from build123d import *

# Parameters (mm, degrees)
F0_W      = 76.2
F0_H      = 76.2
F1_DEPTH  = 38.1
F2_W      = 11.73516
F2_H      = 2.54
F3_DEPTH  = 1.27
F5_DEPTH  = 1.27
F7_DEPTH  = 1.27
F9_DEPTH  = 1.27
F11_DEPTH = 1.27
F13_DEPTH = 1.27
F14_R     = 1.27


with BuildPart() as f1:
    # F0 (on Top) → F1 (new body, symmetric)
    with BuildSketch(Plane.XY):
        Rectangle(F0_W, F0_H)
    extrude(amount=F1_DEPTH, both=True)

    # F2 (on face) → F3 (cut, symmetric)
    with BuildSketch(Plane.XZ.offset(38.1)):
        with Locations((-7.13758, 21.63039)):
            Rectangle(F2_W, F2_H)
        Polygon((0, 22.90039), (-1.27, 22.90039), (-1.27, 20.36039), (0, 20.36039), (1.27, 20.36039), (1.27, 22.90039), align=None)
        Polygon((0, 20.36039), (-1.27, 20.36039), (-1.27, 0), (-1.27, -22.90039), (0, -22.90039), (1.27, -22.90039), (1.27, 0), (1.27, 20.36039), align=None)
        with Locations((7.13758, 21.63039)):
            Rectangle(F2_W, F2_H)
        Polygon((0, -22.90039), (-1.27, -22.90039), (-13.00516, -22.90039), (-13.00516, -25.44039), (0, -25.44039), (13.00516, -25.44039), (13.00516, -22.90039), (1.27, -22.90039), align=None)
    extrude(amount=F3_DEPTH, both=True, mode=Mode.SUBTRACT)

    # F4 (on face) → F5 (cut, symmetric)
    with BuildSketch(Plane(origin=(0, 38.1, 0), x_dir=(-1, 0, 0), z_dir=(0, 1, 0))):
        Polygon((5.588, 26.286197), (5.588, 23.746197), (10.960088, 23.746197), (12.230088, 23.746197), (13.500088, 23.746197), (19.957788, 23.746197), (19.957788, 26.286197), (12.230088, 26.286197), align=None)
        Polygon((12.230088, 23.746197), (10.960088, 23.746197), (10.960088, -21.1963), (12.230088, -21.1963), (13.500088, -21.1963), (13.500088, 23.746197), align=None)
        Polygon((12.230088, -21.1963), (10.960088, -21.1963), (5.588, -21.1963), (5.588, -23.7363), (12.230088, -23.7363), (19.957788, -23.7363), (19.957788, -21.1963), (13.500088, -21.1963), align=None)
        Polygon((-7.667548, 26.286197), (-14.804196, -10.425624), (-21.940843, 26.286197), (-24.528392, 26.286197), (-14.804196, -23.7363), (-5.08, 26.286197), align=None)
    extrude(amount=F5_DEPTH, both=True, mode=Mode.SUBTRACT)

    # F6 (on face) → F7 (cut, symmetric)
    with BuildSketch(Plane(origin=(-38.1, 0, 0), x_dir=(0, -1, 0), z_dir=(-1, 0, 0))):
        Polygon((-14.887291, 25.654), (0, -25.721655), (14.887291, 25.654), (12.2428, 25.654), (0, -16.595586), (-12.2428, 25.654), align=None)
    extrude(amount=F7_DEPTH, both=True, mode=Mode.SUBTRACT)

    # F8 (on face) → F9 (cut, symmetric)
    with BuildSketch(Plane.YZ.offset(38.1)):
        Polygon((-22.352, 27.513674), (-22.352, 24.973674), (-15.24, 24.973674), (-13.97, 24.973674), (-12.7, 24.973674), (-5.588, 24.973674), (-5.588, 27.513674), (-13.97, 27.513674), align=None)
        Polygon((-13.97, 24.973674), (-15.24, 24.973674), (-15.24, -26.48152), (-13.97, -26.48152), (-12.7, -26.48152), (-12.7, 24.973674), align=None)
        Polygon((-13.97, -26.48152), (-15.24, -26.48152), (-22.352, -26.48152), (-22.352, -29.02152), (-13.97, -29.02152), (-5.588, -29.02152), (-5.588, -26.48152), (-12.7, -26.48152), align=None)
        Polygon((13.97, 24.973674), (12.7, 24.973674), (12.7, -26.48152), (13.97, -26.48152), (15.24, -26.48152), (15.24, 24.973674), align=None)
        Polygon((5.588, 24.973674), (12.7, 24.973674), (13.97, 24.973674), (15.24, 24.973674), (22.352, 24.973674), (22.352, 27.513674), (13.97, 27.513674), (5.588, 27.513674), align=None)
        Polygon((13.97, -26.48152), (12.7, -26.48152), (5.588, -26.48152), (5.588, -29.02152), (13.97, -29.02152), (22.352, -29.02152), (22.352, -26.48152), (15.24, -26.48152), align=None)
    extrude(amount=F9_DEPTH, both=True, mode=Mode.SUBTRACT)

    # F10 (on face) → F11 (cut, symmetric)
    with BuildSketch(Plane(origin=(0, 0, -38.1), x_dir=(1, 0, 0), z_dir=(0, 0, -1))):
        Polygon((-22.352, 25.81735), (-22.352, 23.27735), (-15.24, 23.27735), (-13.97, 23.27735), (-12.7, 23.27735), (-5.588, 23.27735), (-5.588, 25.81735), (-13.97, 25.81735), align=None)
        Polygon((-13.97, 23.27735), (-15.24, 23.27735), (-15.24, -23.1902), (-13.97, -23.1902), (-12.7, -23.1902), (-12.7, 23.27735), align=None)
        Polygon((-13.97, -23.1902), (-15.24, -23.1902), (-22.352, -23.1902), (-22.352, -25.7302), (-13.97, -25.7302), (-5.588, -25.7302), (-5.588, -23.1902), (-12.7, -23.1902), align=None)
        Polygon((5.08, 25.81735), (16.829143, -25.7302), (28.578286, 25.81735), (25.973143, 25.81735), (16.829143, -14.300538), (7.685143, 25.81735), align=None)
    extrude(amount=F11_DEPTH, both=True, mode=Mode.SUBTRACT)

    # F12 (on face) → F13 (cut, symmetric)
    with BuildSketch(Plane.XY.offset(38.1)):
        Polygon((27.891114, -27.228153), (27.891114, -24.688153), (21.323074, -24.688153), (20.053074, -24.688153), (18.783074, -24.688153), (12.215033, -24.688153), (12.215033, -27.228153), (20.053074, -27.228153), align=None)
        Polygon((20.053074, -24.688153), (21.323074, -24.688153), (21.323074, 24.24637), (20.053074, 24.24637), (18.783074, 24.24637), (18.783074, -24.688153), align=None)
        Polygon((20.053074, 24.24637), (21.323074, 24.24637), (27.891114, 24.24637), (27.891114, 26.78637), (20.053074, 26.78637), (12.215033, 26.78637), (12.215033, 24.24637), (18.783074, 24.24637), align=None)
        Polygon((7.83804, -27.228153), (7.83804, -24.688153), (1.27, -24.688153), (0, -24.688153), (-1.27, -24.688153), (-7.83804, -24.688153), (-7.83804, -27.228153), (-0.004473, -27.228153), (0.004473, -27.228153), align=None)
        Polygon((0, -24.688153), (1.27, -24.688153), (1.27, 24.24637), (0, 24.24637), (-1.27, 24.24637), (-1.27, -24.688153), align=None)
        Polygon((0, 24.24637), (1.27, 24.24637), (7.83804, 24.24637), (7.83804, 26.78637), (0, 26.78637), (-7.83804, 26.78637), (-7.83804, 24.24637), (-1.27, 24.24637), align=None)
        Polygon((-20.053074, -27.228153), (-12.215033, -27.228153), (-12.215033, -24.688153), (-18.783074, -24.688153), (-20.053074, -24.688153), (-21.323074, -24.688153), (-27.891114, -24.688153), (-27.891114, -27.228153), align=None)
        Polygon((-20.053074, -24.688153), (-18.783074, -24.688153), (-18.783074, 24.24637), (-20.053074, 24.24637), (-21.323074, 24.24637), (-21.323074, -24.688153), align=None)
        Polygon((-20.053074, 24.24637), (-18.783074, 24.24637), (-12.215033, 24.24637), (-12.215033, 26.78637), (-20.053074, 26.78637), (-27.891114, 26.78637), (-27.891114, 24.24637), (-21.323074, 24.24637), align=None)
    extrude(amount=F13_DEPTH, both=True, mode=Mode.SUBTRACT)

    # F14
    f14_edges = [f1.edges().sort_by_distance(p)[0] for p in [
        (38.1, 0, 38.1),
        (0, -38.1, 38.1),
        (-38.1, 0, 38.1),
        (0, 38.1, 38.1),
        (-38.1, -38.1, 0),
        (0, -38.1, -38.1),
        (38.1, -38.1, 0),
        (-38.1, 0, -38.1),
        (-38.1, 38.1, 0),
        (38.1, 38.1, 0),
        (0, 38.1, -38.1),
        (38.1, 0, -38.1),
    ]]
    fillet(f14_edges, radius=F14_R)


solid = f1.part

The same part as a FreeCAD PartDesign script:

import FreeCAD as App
import Part
import Sketcher
Q = App.Units.Quantity


def edges_at(feature, points):
    """Names of the edges that pass closest to the given points."""
    edges = feature.Shape.Edges
    near = lambda p: min(range(len(edges)), key=lambda i: edges[i].distToShape(Part.Vertex(*p))[0])
    return sorted({f"Edge{near(p) + 1}" for p in points})

doc = App.newDocument("Part")
body = doc.addObject("PartDesign::Body", "Body")

sketch1 = body.newObject("Sketcher::SketchObject", "Sketch")
sketch1.AttachmentSupport = (doc.getObject("XY_Plane"), [""])
sketch1.MapMode = "FlatFace"
sketch1.addGeometry([
    Part.LineSegment(App.Vector(-38.1, 38.1, 0), App.Vector(-38.1, -38.1, 0)),
    Part.LineSegment(App.Vector(-38.1, -38.1, 0), App.Vector(38.1, -38.1, 0)),
    Part.LineSegment(App.Vector(38.1, -38.1, 0), App.Vector(38.1, 38.1, 0)),
    Part.LineSegment(App.Vector(38.1, 38.1, 0), App.Vector(-38.1, 38.1, 0)),
], False)
sketch1.addConstraint([
    Sketcher.Constraint("Coincident", 0, 2, 1, 1),
    Sketcher.Constraint("Coincident", 1, 2, 2, 1),
    Sketcher.Constraint("Coincident", 2, 2, 3, 1),
    Sketcher.Constraint("Coincident", 3, 2, 0, 1),
    Sketcher.Constraint("Vertical", 0),
    Sketcher.Constraint("Horizontal", 1),
    Sketcher.Constraint("Vertical", 2),
    Sketcher.Constraint("Horizontal", 3),
    Sketcher.Constraint("Symmetric", 0, 2, 2, 2, -1, 1),
    Sketcher.Constraint("Equal", 3, 0),
    Sketcher.Constraint("DistanceX", 1, 1, 1, 2, Q("3 in")),
])
pad1 = body.newObject("PartDesign::Pad", "Pad")
pad1.Profile = sketch1
pad1.Length = Q("3 in")
pad1.Midplane = True

sketch2 = body.newObject("Sketcher::SketchObject", "Sketch001")
sketch2.AttachmentSupport = (doc.getObject("XZ_Plane"), [""])
sketch2.MapMode = "FlatFace"
sketch2.AttachmentOffset = App.Placement(App.Vector(0, 0, 1.5 * 25.4), App.Rotation())
sketch2.addGeometry([
    Part.LineSegment(App.Vector(-13.00516, 22.90039, 0), App.Vector(-13.00516, 20.36039, 0)),
    Part.LineSegment(App.Vector(-13.00516, 20.36039, 0), App.Vector(-1.27, 20.36039, 0)),
    Part.LineSegment(App.Vector(-1.27, 20.36039, 0), App.Vector(-1.27, -22.90039, 0)),
    Part.LineSegment(App.Vector(-1.27, -22.90039, 0), App.Vector(-13.00516, -22.90039, 0)),
    Part.LineSegment(App.Vector(-13.00516, -22.90039, 0), App.Vector(-13.00516, -25.44039, 0)),
    Part.LineSegment(App.Vector(-13.00516, -25.44039, 0), App.Vector(13.00516, -25.44039, 0)),
    Part.LineSegment(App.Vector(13.00516, -25.44039, 0), App.Vector(13.00516, -22.90039, 0)),
    Part.LineSegment(App.Vector(13.00516, -22.90039, 0), App.Vector(1.27, -22.90039, 0)),
    Part.LineSegment(App.Vector(1.27, -22.90039, 0), App.Vector(1.27, 20.36039, 0)),
    Part.LineSegment(App.Vector(1.27, 20.36039, 0), App.Vector(13.00516, 20.36039, 0)),
    Part.LineSegment(App.Vector(13.00516, 20.36039, 0), App.Vector(13.00516, 22.90039, 0)),
    Part.LineSegment(App.Vector(13.00516, 22.90039, 0), App.Vector(-13.00516, 22.90039, 0)),
], False)
sketch2.addConstraint([
    Sketcher.Constraint("Coincident", 0, 2, 1, 1),
    Sketcher.Constraint("Coincident", 1, 2, 2, 1),
    Sketcher.Constraint("Coincident", 2, 2, 3, 1),
    Sketcher.Constraint("Coincident", 3, 2, 4, 1),
    Sketcher.Constraint("Coincident", 4, 2, 5, 1),
    Sketcher.Constraint("Coincident", 5, 2, 6, 1),
    Sketcher.Constraint("Coincident", 6, 2, 7, 1),
    Sketcher.Constraint("Coincident", 7, 2, 8, 1),
    Sketcher.Constraint("Coincident", 8, 2, 9, 1),
    Sketcher.Constraint("Coincident", 9, 2, 10, 1),
    Sketcher.Constraint("Coincident", 10, 2, 11, 1),
    Sketcher.Constraint("Coincident", 11, 2, 0, 1),
    Sketcher.Constraint("Vertical", 0),
    Sketcher.Constraint("Horizontal", 1),
    Sketcher.Constraint("Vertical", 2),
    Sketcher.Constraint("Horizontal", 3),
    Sketcher.Constraint("Vertical", 4),
    Sketcher.Constraint("Horizontal", 5),
    Sketcher.Constraint("Vertical", 6),
    Sketcher.Constraint("Horizontal", 7),
    Sketcher.Constraint("Vertical", 8),
    Sketcher.Constraint("Horizontal", 9),
    Sketcher.Constraint("Vertical", 10),
    Sketcher.Constraint("Horizontal", 11),
    Sketcher.Constraint("Symmetric", 3, 2, 10, 2, -1, 1),
    Sketcher.Constraint("Symmetric", 6, 2, 11, 2, -1, 1),
    Sketcher.Constraint("Symmetric", 1, 2, 8, 2, -2),
    Sketcher.Constraint("Vertical", 0, 2, 3, 2),
    Sketcher.Constraint("Equal", 0, 4),
    Sketcher.Constraint("DistanceY", 0, 2, 0, 1, Q("0.1 in")),
    Sketcher.Constraint("DistanceX", 2, 2, 7, 2, Q("0.1 in")),
    Sketcher.Constraint("DistanceX", 1, 1, 1, 2, 11.73516),
    Sketcher.Constraint("DistanceY", 2, 2, 2, 1, 43.26078),
])
pocket1 = body.newObject("PartDesign::Pocket", "Pocket")
pocket1.Profile = sketch2
pocket1.Length = Q("0.1 in")
pocket1.Midplane = True

sketch3 = body.newObject("Sketcher::SketchObject", "Sketch002")
sketch3.AttachmentSupport = (doc.getObject("XZ_Plane"), [""])
sketch3.MapMode = "FlatFace"
sketch3.AttachmentOffset = App.Placement(App.Vector(0, 0, -1.5 * 25.4), App.Rotation())
sketch3.addGeometry([
    Part.LineSegment(App.Vector(-5.588, 26.286197, 0), App.Vector(-5.588, 23.746197, 0)),
    Part.LineSegment(App.Vector(-5.588, 23.746197, 0), App.Vector(-10.960088, 23.746197, 0)),
    Part.LineSegment(App.Vector(-10.960088, 23.746197, 0), App.Vector(-10.960088, -21.1963, 0)),
    Part.LineSegment(App.Vector(-10.960088, -21.1963, 0), App.Vector(-5.588, -21.1963, 0)),
    Part.LineSegment(App.Vector(-5.588, -21.1963, 0), App.Vector(-5.588, -23.7363, 0)),
    Part.LineSegment(App.Vector(-5.588, -23.7363, 0), App.Vector(-19.957788, -23.7363, 0)),
    Part.LineSegment(App.Vector(-19.957788, -23.7363, 0), App.Vector(-19.957788, -21.1963, 0)),
    Part.LineSegment(App.Vector(-19.957788, -21.1963, 0), App.Vector(-13.500088, -21.1963, 0)),
    Part.LineSegment(App.Vector(-13.500088, -21.1963, 0), App.Vector(-13.500088, 23.746197, 0)),
    Part.LineSegment(App.Vector(-13.500088, 23.746197, 0), App.Vector(-19.957788, 23.746197, 0)),
    Part.LineSegment(App.Vector(-19.957788, 23.746197, 0), App.Vector(-19.957788, 26.286197, 0)),
    Part.LineSegment(App.Vector(-19.957788, 26.286197, 0), App.Vector(-5.588, 26.286197, 0)),
    Part.LineSegment(App.Vector(7.667548, 26.286197, 0), App.Vector(14.804196, -10.425624, 0)),
    Part.LineSegment(App.Vector(14.804196, -10.425624, 0), App.Vector(21.940843, 26.286197, 0)),
    Part.LineSegment(App.Vector(21.940843, 26.286197, 0), App.Vector(24.528392, 26.286197, 0)),
    Part.LineSegment(App.Vector(24.528392, 26.286197, 0), App.Vector(14.804196, -23.7363, 0)),
    Part.LineSegment(App.Vector(14.804196, -23.7363, 0), App.Vector(5.08, 26.286197, 0)),
    Part.LineSegment(App.Vector(5.08, 26.286197, 0), App.Vector(7.667548, 26.286197, 0)),
], False)
sketch3.addConstraint([
    Sketcher.Constraint("Coincident", 0, 2, 1, 1),
    Sketcher.Constraint("Coincident", 1, 2, 2, 1),
    Sketcher.Constraint("Coincident", 2, 2, 3, 1),
    Sketcher.Constraint("Coincident", 3, 2, 4, 1),
    Sketcher.Constraint("Coincident", 4, 2, 5, 1),
    Sketcher.Constraint("Coincident", 5, 2, 6, 1),
    Sketcher.Constraint("Coincident", 6, 2, 7, 1),
    Sketcher.Constraint("Coincident", 7, 2, 8, 1),
    Sketcher.Constraint("Coincident", 8, 2, 9, 1),
    Sketcher.Constraint("Coincident", 9, 2, 10, 1),
    Sketcher.Constraint("Coincident", 10, 2, 11, 1),
    Sketcher.Constraint("Coincident", 11, 2, 0, 1),
    Sketcher.Constraint("Coincident", 12, 2, 13, 1),
    Sketcher.Constraint("Coincident", 13, 2, 14, 1),
    Sketcher.Constraint("Coincident", 14, 2, 15, 1),
    Sketcher.Constraint("Coincident", 15, 2, 16, 1),
    Sketcher.Constraint("Coincident", 16, 2, 17, 1),
    Sketcher.Constraint("Coincident", 17, 2, 12, 1),
    Sketcher.Constraint("Vertical", 0),
    Sketcher.Constraint("Horizontal", 1),
    Sketcher.Constraint("Vertical", 2),
    Sketcher.Constraint("Horizontal", 3),
    Sketcher.Constraint("Vertical", 4),
    Sketcher.Constraint("Horizontal", 5),
    Sketcher.Constraint("Vertical", 6),
    Sketcher.Constraint("Horizontal", 7),
    Sketcher.Constraint("Vertical", 8),
    Sketcher.Constraint("Horizontal", 9),
    Sketcher.Constraint("Vertical", 10),
    Sketcher.Constraint("Horizontal", 11),
    Sketcher.Constraint("Horizontal", 14),
    Sketcher.Constraint("Horizontal", 17),
    Sketcher.Constraint("Parallel", 13, 15),
    Sketcher.Constraint("Parallel", 12, 16),
    Sketcher.Constraint("Horizontal", 3, 2, 6, 2),
    Sketcher.Constraint("Horizontal", 1, 2, 8, 2),
    Sketcher.Constraint("Horizontal", 11, 2, 13, 2),
    Sketcher.Constraint("Horizontal", 5, 2, 15, 2),
    Sketcher.Constraint("Horizontal", 14, 2, 16, 2),
    Sketcher.Constraint("Vertical", 0, 2, 3, 2),
    Sketcher.Constraint("Vertical", 6, 2, 9, 2),
    Sketcher.Constraint("Vertical", 12, 2, 15, 2),
    Sketcher.Constraint("Equal", 14, 17),
    Sketcher.Constraint("Equal", 0, 4),
    Sketcher.Constraint("DistanceY", 0, 2, 0, 1, Q("0.1 in")),
    Sketcher.Constraint("DistanceX", -1, 1, 16, 2, Q("0.2 in")),
    Sketcher.Constraint("DistanceX", 7, 2, 2, 2, Q("0.1 in")),
    Sketcher.Constraint("DistanceX", 0, 2, -1, 1, Q("0.22 in")),
    Sketcher.Constraint("DistanceX", 7, 1, 7, 2, 6.4577),
    Sketcher.Constraint("DistanceY", 2, 2, -1, 1, Q("0.8345 in")),
    Sketcher.Constraint("DistanceX", 1, 2, 1, 1, 5.372088),
    Sketcher.Constraint("DistanceX", 14, 1, 14, 2, 2.587549),
    Sketcher.Constraint("Distance", 12, 37.399058),
    Sketcher.Constraint("DistanceY", 2, 2, 2, 1, 44.942497),
])
pocket2 = body.newObject("PartDesign::Pocket", "Pocket001")
pocket2.Profile = sketch3
pocket2.Length = Q("0.1 in")
pocket2.Midplane = True

sketch4 = body.newObject("Sketcher::SketchObject", "Sketch003")
sketch4.AttachmentSupport = (doc.getObject("YZ_Plane"), [""])
sketch4.MapMode = "FlatFace"
sketch4.AttachmentOffset = App.Placement(App.Vector(0, 0, -1.5 * 25.4), App.Rotation())
sketch4.addGeometry([
    Part.LineSegment(App.Vector(14.887291, 25.654, 0), App.Vector(0, -25.721655, 0)),
    Part.LineSegment(App.Vector(0, -25.721655, 0), App.Vector(-14.887291, 25.654, 0)),
    Part.LineSegment(App.Vector(-14.887291, 25.654, 0), App.Vector(-12.2428, 25.654, 0)),
    Part.LineSegment(App.Vector(-12.2428, 25.654, 0), App.Vector(0, -16.595586, 0)),
    Part.LineSegment(App.Vector(0, -16.595586, 0), App.Vector(12.2428, 25.654, 0)),
    Part.LineSegment(App.Vector(12.2428, 25.654, 0), App.Vector(14.887291, 25.654, 0)),
], False)
sketch4.addConstraint([
    Sketcher.Constraint("Coincident", 0, 2, 1, 1),
    Sketcher.Constraint("Coincident", 1, 2, 2, 1),
    Sketcher.Constraint("Coincident", 2, 2, 3, 1),
    Sketcher.Constraint("Coincident", 3, 2, 4, 1),
    Sketcher.Constraint("Coincident", 4, 2, 5, 1),
    Sketcher.Constraint("Coincident", 5, 2, 0, 1),
    Sketcher.Constraint("Horizontal", 2),
    Sketcher.Constraint("Horizontal", 5),
    Sketcher.Constraint("Symmetric", 2, 2, 4, 2, -2),
    Sketcher.Constraint("PointOnObject", 0, 2, -2),
    Sketcher.Constraint("PointOnObject", 3, 2, -2),
    Sketcher.Constraint("Parallel", 1, 3),
    Sketcher.Constraint("Parallel", 0, 4),
    Sketcher.Constraint("DistanceY", -1, 1, 1, 2, Q("1.01 in")),
    Sketcher.Constraint("DistanceX", 2, 2, -1, 1, Q("0.482 in")),
    Sketcher.Constraint("DistanceX", 2, 1, 2, 2, 2.644491),
    Sketcher.Constraint("Distance", 0, 53.489152),
])
pocket3 = body.newObject("PartDesign::Pocket", "Pocket002")
pocket3.Profile = sketch4
pocket3.Length = Q("0.1 in")
pocket3.Midplane = True

sketch5 = body.newObject("Sketcher::SketchObject", "Sketch004")
sketch5.AttachmentSupport = (doc.getObject("YZ_Plane"), [""])
sketch5.MapMode = "FlatFace"
sketch5.AttachmentOffset = App.Placement(App.Vector(0, 0, 1.5 * 25.4), App.Rotation())
sketch5.addGeometry([
    Part.LineSegment(App.Vector(-22.352, 27.513674, 0), App.Vector(-22.352, 24.973674, 0)),
    Part.LineSegment(App.Vector(-22.352, 24.973674, 0), App.Vector(-15.24, 24.973674, 0)),
    Part.LineSegment(App.Vector(-15.24, 24.973674, 0), App.Vector(-15.24, -26.48152, 0)),
    Part.LineSegment(App.Vector(-15.24, -26.48152, 0), App.Vector(-22.352, -26.48152, 0)),
    Part.LineSegment(App.Vector(-22.352, -26.48152, 0), App.Vector(-22.352, -29.02152, 0)),
    Part.LineSegment(App.Vector(-22.352, -29.02152, 0), App.Vector(-5.588, -29.02152, 0)),
    Part.LineSegment(App.Vector(-5.588, -29.02152, 0), App.Vector(-5.588, -26.48152, 0)),
    Part.LineSegment(App.Vector(-5.588, -26.48152, 0), App.Vector(-12.7, -26.48152, 0)),
    Part.LineSegment(App.Vector(-12.7, -26.48152, 0), App.Vector(-12.7, 24.973674, 0)),
    Part.LineSegment(App.Vector(-12.7, 24.973674, 0), App.Vector(-5.588, 24.973674, 0)),
    Part.LineSegment(App.Vector(-5.588, 24.973674, 0), App.Vector(-5.588, 27.513674, 0)),
    Part.LineSegment(App.Vector(-5.588, 27.513674, 0), App.Vector(-22.352, 27.513674, 0)),
    Part.LineSegment(App.Vector(12.7, 24.973674, 0), App.Vector(12.7, -26.48152, 0)),
    Part.LineSegment(App.Vector(12.7, -26.48152, 0), App.Vector(5.588, -26.48152, 0)),
    Part.LineSegment(App.Vector(5.588, -26.48152, 0), App.Vector(5.588, -29.02152, 0)),
    Part.LineSegment(App.Vector(5.588, -29.02152, 0), App.Vector(22.352, -29.02152, 0)),
    Part.LineSegment(App.Vector(22.352, -29.02152, 0), App.Vector(22.352, -26.48152, 0)),
    Part.LineSegment(App.Vector(22.352, -26.48152, 0), App.Vector(15.24, -26.48152, 0)),
    Part.LineSegment(App.Vector(15.24, -26.48152, 0), App.Vector(15.24, 24.973674, 0)),
    Part.LineSegment(App.Vector(15.24, 24.973674, 0), App.Vector(22.352, 24.973674, 0)),
    Part.LineSegment(App.Vector(22.352, 24.973674, 0), App.Vector(22.352, 27.513674, 0)),
    Part.LineSegment(App.Vector(22.352, 27.513674, 0), App.Vector(5.588, 27.513674, 0)),
    Part.LineSegment(App.Vector(5.588, 27.513674, 0), App.Vector(5.588, 24.973674, 0)),
    Part.LineSegment(App.Vector(5.588, 24.973674, 0), App.Vector(12.7, 24.973674, 0)),
], False)
sketch5.addConstraint([
    Sketcher.Constraint("Coincident", 0, 2, 1, 1),
    Sketcher.Constraint("Coincident", 1, 2, 2, 1),
    Sketcher.Constraint("Coincident", 2, 2, 3, 1),
    Sketcher.Constraint("Coincident", 3, 2, 4, 1),
    Sketcher.Constraint("Coincident", 4, 2, 5, 1),
    Sketcher.Constraint("Coincident", 5, 2, 6, 1),
    Sketcher.Constraint("Coincident", 6, 2, 7, 1),
    Sketcher.Constraint("Coincident", 7, 2, 8, 1),
    Sketcher.Constraint("Coincident", 8, 2, 9, 1),
    Sketcher.Constraint("Coincident", 9, 2, 10, 1),
    Sketcher.Constraint("Coincident", 10, 2, 11, 1),
    Sketcher.Constraint("Coincident", 11, 2, 0, 1),
    Sketcher.Constraint("Coincident", 12, 2, 13, 1),
    Sketcher.Constraint("Coincident", 13, 2, 14, 1),
    Sketcher.Constraint("Coincident", 14, 2, 15, 1),
    Sketcher.Constraint("Coincident", 15, 2, 16, 1),
    Sketcher.Constraint("Coincident", 16, 2, 17, 1),
    Sketcher.Constraint("Coincident", 17, 2, 18, 1),
    Sketcher.Constraint("Coincident", 18, 2, 19, 1),
    Sketcher.Constraint("Coincident", 19, 2, 20, 1),
    Sketcher.Constraint("Coincident", 20, 2, 21, 1),
    Sketcher.Constraint("Coincident", 21, 2, 22, 1),
    Sketcher.Constraint("Coincident", 22, 2, 23, 1),
    Sketcher.Constraint("Coincident", 23, 2, 12, 1),
    Sketcher.Constraint("Vertical", 0),
    Sketcher.Constraint("Horizontal", 1),
    Sketcher.Constraint("Vertical", 2),
    Sketcher.Constraint("Horizontal", 3),
    Sketcher.Constraint("Vertical", 4),
    Sketcher.Constraint("Horizontal", 5),
    Sketcher.Constraint("Vertical", 6),
    Sketcher.Constraint("Horizontal", 7),
    Sketcher.Constraint("Vertical", 8),
    Sketcher.Constraint("Horizontal", 9),
    Sketcher.Constraint("Vertical", 10),
    Sketcher.Constraint("Horizontal", 11),
    Sketcher.Constraint("Vertical", 12),
    Sketcher.Constraint("Horizontal", 13),
    Sketcher.Constraint("Vertical", 14),
    Sketcher.Constraint("Horizontal", 15),
    Sketcher.Constraint("Vertical", 16),
    Sketcher.Constraint("Horizontal", 17),
    Sketcher.Constraint("Vertical", 18),
    Sketcher.Constraint("Horizontal", 19),
    Sketcher.Constraint("Vertical", 20),
    Sketcher.Constraint("Horizontal", 21),
    Sketcher.Constraint("Vertical", 22),
    Sketcher.Constraint("Horizontal", 23),
    Sketcher.Constraint("Symmetric", 7, 2, 12, 2, -2),
    Sketcher.Constraint("Symmetric", 5, 2, 14, 2, -2),
    Sketcher.Constraint("Symmetric", 3, 2, 16, 2, -2),
    Sketcher.Constraint("Symmetric", 1, 2, 18, 2, -2),
    Sketcher.Constraint("Symmetric", 11, 2, 20, 2, -2),
    Sketcher.Constraint("Symmetric", 9, 2, 22, 2, -2),
    Sketcher.Constraint("Horizontal", 3, 2, 6, 2),
    Sketcher.Constraint("Horizontal", 1, 2, 8, 2),
    Sketcher.Constraint("Vertical", 0, 2, 3, 2),
    Sketcher.Constraint("Vertical", 6, 2, 9, 2),
    Sketcher.Constraint("Equal", 3, 7),
    Sketcher.Constraint("Equal", 0, 4),
    Sketcher.Constraint("DistanceY", 0, 2, 0, 1, Q("0.1 in")),
    Sketcher.Constraint("DistanceX", 7, 2, 12, 2, Q("1 in")),
    Sketcher.Constraint("DistanceX", 1, 1, 1, 2, Q("0.28 in")),
    Sketcher.Constraint("DistanceX", 5, 1, 5, 2, Q("0.66 in")),
    Sketcher.Constraint("DistanceY", 2, 2, 2, 1, 51.455194),
    Sketcher.Constraint("DistanceY", 2, 2, -1, 1, 26.48152),
])
pocket4 = body.newObject("PartDesign::Pocket", "Pocket003")
pocket4.Profile = sketch5
pocket4.Length = Q("0.1 in")
pocket4.Midplane = True

sketch6 = body.newObject("Sketcher::SketchObject", "Sketch005")
sketch6.AttachmentSupport = (doc.getObject("XY_Plane"), [""])
sketch6.MapMode = "FlatFace"
sketch6.AttachmentOffset = App.Placement(App.Vector(0, 0, -1.5 * 25.4), App.Rotation())
sketch6.addGeometry([
    Part.LineSegment(App.Vector(-22.352, -25.81735, 0), App.Vector(-22.352, -23.27735, 0)),
    Part.LineSegment(App.Vector(-22.352, -23.27735, 0), App.Vector(-15.24, -23.27735, 0)),
    Part.LineSegment(App.Vector(-15.24, -23.27735, 0), App.Vector(-15.24, 23.1902, 0)),
    Part.LineSegment(App.Vector(-15.24, 23.1902, 0), App.Vector(-22.352, 23.1902, 0)),
    Part.LineSegment(App.Vector(-22.352, 23.1902, 0), App.Vector(-22.352, 25.7302, 0)),
    Part.LineSegment(App.Vector(-22.352, 25.7302, 0), App.Vector(-5.588, 25.7302, 0)),
    Part.LineSegment(App.Vector(-5.588, 25.7302, 0), App.Vector(-5.588, 23.1902, 0)),
    Part.LineSegment(App.Vector(-5.588, 23.1902, 0), App.Vector(-12.7, 23.1902, 0)),
    Part.LineSegment(App.Vector(-12.7, 23.1902, 0), App.Vector(-12.7, -23.27735, 0)),
    Part.LineSegment(App.Vector(-12.7, -23.27735, 0), App.Vector(-5.588, -23.27735, 0)),
    Part.LineSegment(App.Vector(-5.588, -23.27735, 0), App.Vector(-5.588, -25.81735, 0)),
    Part.LineSegment(App.Vector(-5.588, -25.81735, 0), App.Vector(-22.352, -25.81735, 0)),
    Part.LineSegment(App.Vector(5.08, -25.81735, 0), App.Vector(16.829143, 25.7302, 0)),
    Part.LineSegment(App.Vector(16.829143, 25.7302, 0), App.Vector(28.578286, -25.81735, 0)),
    Part.LineSegment(App.Vector(28.578286, -25.81735, 0), App.Vector(25.973143, -25.81735, 0)),
    Part.LineSegment(App.Vector(25.973143, -25.81735, 0), App.Vector(16.829143, 14.300538, 0)),
    Part.LineSegment(App.Vector(16.829143, 14.300538, 0), App.Vector(7.685143, -25.81735, 0)),
    Part.LineSegment(App.Vector(7.685143, -25.81735, 0), App.Vector(5.08, -25.81735, 0)),
], False)
sketch6.addConstraint([
    Sketcher.Constraint("Coincident", 0, 2, 1, 1),
    Sketcher.Constraint("Coincident", 1, 2, 2, 1),
    Sketcher.Constraint("Coincident", 2, 2, 3, 1),
    Sketcher.Constraint("Coincident", 3, 2, 4, 1),
    Sketcher.Constraint("Coincident", 4, 2, 5, 1),
    Sketcher.Constraint("Coincident", 5, 2, 6, 1),
    Sketcher.Constraint("Coincident", 6, 2, 7, 1),
    Sketcher.Constraint("Coincident", 7, 2, 8, 1),
    Sketcher.Constraint("Coincident", 8, 2, 9, 1),
    Sketcher.Constraint("Coincident", 9, 2, 10, 1),
    Sketcher.Constraint("Coincident", 10, 2, 11, 1),
    Sketcher.Constraint("Coincident", 11, 2, 0, 1),
    Sketcher.Constraint("Coincident", 12, 2, 13, 1),
    Sketcher.Constraint("Coincident", 13, 2, 14, 1),
    Sketcher.Constraint("Coincident", 14, 2, 15, 1),
    Sketcher.Constraint("Coincident", 15, 2, 16, 1),
    Sketcher.Constraint("Coincident", 16, 2, 17, 1),
    Sketcher.Constraint("Coincident", 17, 2, 12, 1),
    Sketcher.Constraint("Vertical", 0),
    Sketcher.Constraint("Horizontal", 1),
    Sketcher.Constraint("Vertical", 2),
    Sketcher.Constraint("Horizontal", 3),
    Sketcher.Constraint("Vertical", 4),
    Sketcher.Constraint("Horizontal", 5),
    Sketcher.Constraint("Vertical", 6),
    Sketcher.Constraint("Horizontal", 7),
    Sketcher.Constraint("Vertical", 8),
    Sketcher.Constraint("Horizontal", 9),
    Sketcher.Constraint("Vertical", 10),
    Sketcher.Constraint("Horizontal", 11),
    Sketcher.Constraint("Horizontal", 14),
    Sketcher.Constraint("Horizontal", 17),
    Sketcher.Constraint("Parallel", 13, 15),
    Sketcher.Constraint("Parallel", 12, 16),
    Sketcher.Constraint("Horizontal", 3, 2, 6, 2),
    Sketcher.Constraint("Horizontal", 1, 2, 8, 2),
    Sketcher.Constraint("Horizontal", 5, 2, 12, 2),
    Sketcher.Constraint("Horizontal", 11, 2, 13, 2),
    Sketcher.Constraint("Horizontal", 14, 2, 16, 2),
    Sketcher.Constraint("Vertical", 0, 2, 3, 2),
    Sketcher.Constraint("Vertical", 6, 2, 9, 2),
    Sketcher.Constraint("Vertical", 12, 2, 15, 2),
    Sketcher.Constraint("Equal", 3, 7),
    Sketcher.Constraint("Equal", 14, 17),
    Sketcher.Constraint("Equal", 0, 4),
    Sketcher.Constraint("DistanceY", 0, 1, 0, 2, Q("0.1 in")),
    Sketcher.Constraint("DistanceX", 1, 1, 1, 2, Q("0.28 in")),
    Sketcher.Constraint("DistanceX", 5, 1, 5, 2, Q("0.66 in")),
    Sketcher.Constraint("DistanceX", 1, 2, -1, 1, Q("0.6 in")),
    Sketcher.Constraint("DistanceX", -1, 1, 17, 2, Q("0.2 in")),
    Sketcher.Constraint("DistanceX", 16, 2, 14, 2, Q("0.72 in")),
    Sketcher.Constraint("DistanceY", -1, 1, 2, 2, Q("0.913 in")),
    Sketcher.Constraint("DistanceY", 2, 1, 2, 2, 46.46755),
    Sketcher.Constraint("DistanceX", 14, 2, 14, 1, 2.605143),
])
pocket5 = body.newObject("PartDesign::Pocket", "Pocket004")
pocket5.Profile = sketch6
pocket5.Length = Q("0.1 in")
pocket5.Midplane = True

sketch7 = body.newObject("Sketcher::SketchObject", "Sketch006")
sketch7.AttachmentSupport = (doc.getObject("XY_Plane"), [""])
sketch7.MapMode = "FlatFace"
sketch7.AttachmentOffset = App.Placement(App.Vector(0, 0, 1.5 * 25.4), App.Rotation())
sketch7.addGeometry([
    Part.LineSegment(App.Vector(27.891114, -27.228153, 0), App.Vector(27.891114, -24.688153, 0)),
    Part.LineSegment(App.Vector(27.891114, -24.688153, 0), App.Vector(21.323074, -24.688153, 0)),
    Part.LineSegment(App.Vector(21.323074, -24.688153, 0), App.Vector(21.323074, 24.24637, 0)),
    Part.LineSegment(App.Vector(21.323074, 24.24637, 0), App.Vector(27.891114, 24.24637, 0)),
    Part.LineSegment(App.Vector(27.891114, 24.24637, 0), App.Vector(27.891114, 26.78637, 0)),
    Part.LineSegment(App.Vector(27.891114, 26.78637, 0), App.Vector(12.215033, 26.78637, 0)),
    Part.LineSegment(App.Vector(12.215033, 26.78637, 0), App.Vector(12.215033, 24.24637, 0)),
    Part.LineSegment(App.Vector(12.215033, 24.24637, 0), App.Vector(18.783074, 24.24637, 0)),
    Part.LineSegment(App.Vector(18.783074, 24.24637, 0), App.Vector(18.783074, -24.688153, 0)),
    Part.LineSegment(App.Vector(18.783074, -24.688153, 0), App.Vector(12.215033, -24.688153, 0)),
    Part.LineSegment(App.Vector(12.215033, -24.688153, 0), App.Vector(12.215033, -27.228153, 0)),
    Part.LineSegment(App.Vector(12.215033, -27.228153, 0), App.Vector(27.891114, -27.228153, 0)),
    Part.LineSegment(App.Vector(7.83804, -27.228153, 0), App.Vector(7.83804, -24.688153, 0)),
    Part.LineSegment(App.Vector(7.83804, -24.688153, 0), App.Vector(1.27, -24.688153, 0)),
    Part.LineSegment(App.Vector(1.27, -24.688153, 0), App.Vector(1.27, 24.24637, 0)),
    Part.LineSegment(App.Vector(1.27, 24.24637, 0), App.Vector(7.83804, 24.24637, 0)),
    Part.LineSegment(App.Vector(7.83804, 24.24637, 0), App.Vector(7.83804, 26.78637, 0)),
    Part.LineSegment(App.Vector(7.83804, 26.78637, 0), App.Vector(-7.83804, 26.78637, 0)),
    Part.LineSegment(App.Vector(-7.83804, 26.78637, 0), App.Vector(-7.83804, 24.24637, 0)),
    Part.LineSegment(App.Vector(-7.83804, 24.24637, 0), App.Vector(-1.27, 24.24637, 0)),
    Part.LineSegment(App.Vector(-1.27, 24.24637, 0), App.Vector(-1.27, -24.688153, 0)),
    Part.LineSegment(App.Vector(-1.27, -24.688153, 0), App.Vector(-7.83804, -24.688153, 0)),
    Part.LineSegment(App.Vector(-7.83804, -24.688153, 0), App.Vector(-7.83804, -27.228153, 0)),
    Part.LineSegment(App.Vector(-7.83804, -27.228153, 0), App.Vector(7.83804, -27.228153, 0)),
    Part.LineSegment(App.Vector(-12.215033, -27.228153, 0), App.Vector(-12.215033, -24.688153, 0)),
    Part.LineSegment(App.Vector(-12.215033, -24.688153, 0), App.Vector(-18.783074, -24.688153, 0)),
    Part.LineSegment(App.Vector(-18.783074, -24.688153, 0), App.Vector(-18.783074, 24.24637, 0)),
    Part.LineSegment(App.Vector(-18.783074, 24.24637, 0), App.Vector(-12.215033, 24.24637, 0)),
    Part.LineSegment(App.Vector(-12.215033, 24.24637, 0), App.Vector(-12.215033, 26.78637, 0)),
    Part.LineSegment(App.Vector(-12.215033, 26.78637, 0), App.Vector(-27.891114, 26.78637, 0)),
    Part.LineSegment(App.Vector(-27.891114, 26.78637, 0), App.Vector(-27.891114, 24.24637, 0)),
    Part.LineSegment(App.Vector(-27.891114, 24.24637, 0), App.Vector(-21.323074, 24.24637, 0)),
    Part.LineSegment(App.Vector(-21.323074, 24.24637, 0), App.Vector(-21.323074, -24.688153, 0)),
    Part.LineSegment(App.Vector(-21.323074, -24.688153, 0), App.Vector(-27.891114, -24.688153, 0)),
    Part.LineSegment(App.Vector(-27.891114, -24.688153, 0), App.Vector(-27.891114, -27.228153, 0)),
    Part.LineSegment(App.Vector(-27.891114, -27.228153, 0), App.Vector(-12.215033, -27.228153, 0)),
], False)
sketch7.addConstraint([
    Sketcher.Constraint("Coincident", 0, 2, 1, 1),
    Sketcher.Constraint("Coincident", 1, 2, 2, 1),
    Sketcher.Constraint("Coincident", 2, 2, 3, 1),
    Sketcher.Constraint("Coincident", 3, 2, 4, 1),
    Sketcher.Constraint("Coincident", 4, 2, 5, 1),
    Sketcher.Constraint("Coincident", 5, 2, 6, 1),
    Sketcher.Constraint("Coincident", 6, 2, 7, 1),
    Sketcher.Constraint("Coincident", 7, 2, 8, 1),
    Sketcher.Constraint("Coincident", 8, 2, 9, 1),
    Sketcher.Constraint("Coincident", 9, 2, 10, 1),
    Sketcher.Constraint("Coincident", 10, 2, 11, 1),
    Sketcher.Constraint("Coincident", 11, 2, 0, 1),
    Sketcher.Constraint("Coincident", 12, 2, 13, 1),
    Sketcher.Constraint("Coincident", 13, 2, 14, 1),
    Sketcher.Constraint("Coincident", 14, 2, 15, 1),
    Sketcher.Constraint("Coincident", 15, 2, 16, 1),
    Sketcher.Constraint("Coincident", 16, 2, 17, 1),
    Sketcher.Constraint("Coincident", 17, 2, 18, 1),
    Sketcher.Constraint("Coincident", 18, 2, 19, 1),
    Sketcher.Constraint("Coincident", 19, 2, 20, 1),
    Sketcher.Constraint("Coincident", 20, 2, 21, 1),
    Sketcher.Constraint("Coincident", 21, 2, 22, 1),
    Sketcher.Constraint("Coincident", 22, 2, 23, 1),
    Sketcher.Constraint("Coincident", 23, 2, 12, 1),
    Sketcher.Constraint("Coincident", 24, 2, 25, 1),
    Sketcher.Constraint("Coincident", 25, 2, 26, 1),
    Sketcher.Constraint("Coincident", 26, 2, 27, 1),
    Sketcher.Constraint("Coincident", 27, 2, 28, 1),
    Sketcher.Constraint("Coincident", 28, 2, 29, 1),
    Sketcher.Constraint("Coincident", 29, 2, 30, 1),
    Sketcher.Constraint("Coincident", 30, 2, 31, 1),
    Sketcher.Constraint("Coincident", 31, 2, 32, 1),
    Sketcher.Constraint("Coincident", 32, 2, 33, 1),
    Sketcher.Constraint("Coincident", 33, 2, 34, 1),
    Sketcher.Constraint("Coincident", 34, 2, 35, 1),
    Sketcher.Constraint("Coincident", 35, 2, 24, 1),
    Sketcher.Constraint("Vertical", 0),
    Sketcher.Constraint("Horizontal", 1),
    Sketcher.Constraint("Vertical", 2),
    Sketcher.Constraint("Horizontal", 3),
    Sketcher.Constraint("Vertical", 4),
    Sketcher.Constraint("Horizontal", 5),
    Sketcher.Constraint("Vertical", 6),
    Sketcher.Constraint("Horizontal", 7),
    Sketcher.Constraint("Vertical", 8),
    Sketcher.Constraint("Horizontal", 9),
    Sketcher.Constraint("Vertical", 10),
    Sketcher.Constraint("Horizontal", 11),
    Sketcher.Constraint("Vertical", 12),
    Sketcher.Constraint("Horizontal", 13),
    Sketcher.Constraint("Vertical", 14),
    Sketcher.Constraint("Horizontal", 15),
    Sketcher.Constraint("Vertical", 16),
    Sketcher.Constraint("Horizontal", 17),
    Sketcher.Constraint("Vertical", 18),
    Sketcher.Constraint("Horizontal", 19),
    Sketcher.Constraint("Vertical", 20),
    Sketcher.Constraint("Horizontal", 21),
    Sketcher.Constraint("Vertical", 22),
    Sketcher.Constraint("Horizontal", 23),
    Sketcher.Constraint("Vertical", 24),
    Sketcher.Constraint("Horizontal", 25),
    Sketcher.Constraint("Vertical", 26),
    Sketcher.Constraint("Horizontal", 27),
    Sketcher.Constraint("Vertical", 28),
    Sketcher.Constraint("Horizontal", 29),
    Sketcher.Constraint("Vertical", 30),
    Sketcher.Constraint("Horizontal", 31),
    Sketcher.Constraint("Vertical", 32),
    Sketcher.Constraint("Horizontal", 33),
    Sketcher.Constraint("Vertical", 34),
    Sketcher.Constraint("Horizontal", 35),
    Sketcher.Constraint("Symmetric", 15, 2, 18, 2, -2),
    Sketcher.Constraint("Symmetric", 13, 2, 20, 2, -2),
    Sketcher.Constraint("Symmetric", 9, 2, 24, 2, -2),
    Sketcher.Constraint("Symmetric", 7, 2, 26, 2, -2),
    Sketcher.Constraint("Symmetric", 5, 2, 28, 2, -2),
    Sketcher.Constraint("Symmetric", 3, 2, 30, 2, -2),
    Sketcher.Constraint("Symmetric", 1, 2, 32, 2, -2),
    Sketcher.Constraint("Symmetric", 11, 2, 34, 2, -2),
    Sketcher.Constraint("Horizontal", 3, 2, 6, 2),
    Sketcher.Constraint("Horizontal", 1, 2, 8, 2),
    Sketcher.Constraint("Horizontal", 9, 2, 12, 2),
    Sketcher.Constraint("Horizontal", 7, 2, 14, 2),
    Sketcher.Constraint("Horizontal", 5, 2, 16, 2),
    Sketcher.Constraint("Horizontal", 11, 2, 22, 2),
    Sketcher.Constraint("Vertical", 0, 2, 3, 2),
    Sketcher.Constraint("Vertical", 6, 2, 9, 2),
    Sketcher.Constraint("Vertical", 12, 2, 15, 2),
    Sketcher.Constraint("Vertical", 18, 2, 21, 2),
    Sketcher.Constraint("Equal", 3, 7),
    Sketcher.Constraint("Equal", 9, 13),
    Sketcher.Constraint("Equal", 11, 17),
    Sketcher.Constraint("Equal", 0, 4),
    Sketcher.Constraint("DistanceY", 0, 1, 0, 2, Q("0.1 in")),
    Sketcher.Constraint("DistanceX", 7, 2, 2, 2, Q("0.1 in")),
    Sketcher.Constraint("DistanceX", 1, 2, 1, 1, 6.56804),
    Sketcher.Constraint("DistanceY", 2, 1, 2, 2, 48.934523),
    Sketcher.Constraint("DistanceY", -1, 1, 2, 2, 24.24637),
    Sketcher.Constraint("DistanceX", -1, 1, 0, 2, 27.891114),
])
pocket6 = body.newObject("PartDesign::Pocket", "Pocket005")
pocket6.Profile = sketch7
pocket6.Length = Q("0.1 in")
pocket6.Midplane = True
doc.recompute()

fillet = body.newObject("PartDesign::Fillet", "Fillet")
fillet.Base = (pocket6, edges_at(pocket6, [
    (38.1, 0, 38.1),
    (0, -38.1, 38.1),
    (-38.1, 0, 38.1),
    (0, 38.1, 38.1),
    (-38.1, -38.1, 0),
    (0, -38.1, -38.1),
    (38.1, -38.1, 0),
    (-38.1, 0, -38.1),
    (-38.1, 38.1, 0),
    (38.1, 38.1, 0),
    (0, 38.1, -38.1),
    (38.1, 0, -38.1),
]))
fillet.Radius = Q("0.05 in")

doc.recompute()
